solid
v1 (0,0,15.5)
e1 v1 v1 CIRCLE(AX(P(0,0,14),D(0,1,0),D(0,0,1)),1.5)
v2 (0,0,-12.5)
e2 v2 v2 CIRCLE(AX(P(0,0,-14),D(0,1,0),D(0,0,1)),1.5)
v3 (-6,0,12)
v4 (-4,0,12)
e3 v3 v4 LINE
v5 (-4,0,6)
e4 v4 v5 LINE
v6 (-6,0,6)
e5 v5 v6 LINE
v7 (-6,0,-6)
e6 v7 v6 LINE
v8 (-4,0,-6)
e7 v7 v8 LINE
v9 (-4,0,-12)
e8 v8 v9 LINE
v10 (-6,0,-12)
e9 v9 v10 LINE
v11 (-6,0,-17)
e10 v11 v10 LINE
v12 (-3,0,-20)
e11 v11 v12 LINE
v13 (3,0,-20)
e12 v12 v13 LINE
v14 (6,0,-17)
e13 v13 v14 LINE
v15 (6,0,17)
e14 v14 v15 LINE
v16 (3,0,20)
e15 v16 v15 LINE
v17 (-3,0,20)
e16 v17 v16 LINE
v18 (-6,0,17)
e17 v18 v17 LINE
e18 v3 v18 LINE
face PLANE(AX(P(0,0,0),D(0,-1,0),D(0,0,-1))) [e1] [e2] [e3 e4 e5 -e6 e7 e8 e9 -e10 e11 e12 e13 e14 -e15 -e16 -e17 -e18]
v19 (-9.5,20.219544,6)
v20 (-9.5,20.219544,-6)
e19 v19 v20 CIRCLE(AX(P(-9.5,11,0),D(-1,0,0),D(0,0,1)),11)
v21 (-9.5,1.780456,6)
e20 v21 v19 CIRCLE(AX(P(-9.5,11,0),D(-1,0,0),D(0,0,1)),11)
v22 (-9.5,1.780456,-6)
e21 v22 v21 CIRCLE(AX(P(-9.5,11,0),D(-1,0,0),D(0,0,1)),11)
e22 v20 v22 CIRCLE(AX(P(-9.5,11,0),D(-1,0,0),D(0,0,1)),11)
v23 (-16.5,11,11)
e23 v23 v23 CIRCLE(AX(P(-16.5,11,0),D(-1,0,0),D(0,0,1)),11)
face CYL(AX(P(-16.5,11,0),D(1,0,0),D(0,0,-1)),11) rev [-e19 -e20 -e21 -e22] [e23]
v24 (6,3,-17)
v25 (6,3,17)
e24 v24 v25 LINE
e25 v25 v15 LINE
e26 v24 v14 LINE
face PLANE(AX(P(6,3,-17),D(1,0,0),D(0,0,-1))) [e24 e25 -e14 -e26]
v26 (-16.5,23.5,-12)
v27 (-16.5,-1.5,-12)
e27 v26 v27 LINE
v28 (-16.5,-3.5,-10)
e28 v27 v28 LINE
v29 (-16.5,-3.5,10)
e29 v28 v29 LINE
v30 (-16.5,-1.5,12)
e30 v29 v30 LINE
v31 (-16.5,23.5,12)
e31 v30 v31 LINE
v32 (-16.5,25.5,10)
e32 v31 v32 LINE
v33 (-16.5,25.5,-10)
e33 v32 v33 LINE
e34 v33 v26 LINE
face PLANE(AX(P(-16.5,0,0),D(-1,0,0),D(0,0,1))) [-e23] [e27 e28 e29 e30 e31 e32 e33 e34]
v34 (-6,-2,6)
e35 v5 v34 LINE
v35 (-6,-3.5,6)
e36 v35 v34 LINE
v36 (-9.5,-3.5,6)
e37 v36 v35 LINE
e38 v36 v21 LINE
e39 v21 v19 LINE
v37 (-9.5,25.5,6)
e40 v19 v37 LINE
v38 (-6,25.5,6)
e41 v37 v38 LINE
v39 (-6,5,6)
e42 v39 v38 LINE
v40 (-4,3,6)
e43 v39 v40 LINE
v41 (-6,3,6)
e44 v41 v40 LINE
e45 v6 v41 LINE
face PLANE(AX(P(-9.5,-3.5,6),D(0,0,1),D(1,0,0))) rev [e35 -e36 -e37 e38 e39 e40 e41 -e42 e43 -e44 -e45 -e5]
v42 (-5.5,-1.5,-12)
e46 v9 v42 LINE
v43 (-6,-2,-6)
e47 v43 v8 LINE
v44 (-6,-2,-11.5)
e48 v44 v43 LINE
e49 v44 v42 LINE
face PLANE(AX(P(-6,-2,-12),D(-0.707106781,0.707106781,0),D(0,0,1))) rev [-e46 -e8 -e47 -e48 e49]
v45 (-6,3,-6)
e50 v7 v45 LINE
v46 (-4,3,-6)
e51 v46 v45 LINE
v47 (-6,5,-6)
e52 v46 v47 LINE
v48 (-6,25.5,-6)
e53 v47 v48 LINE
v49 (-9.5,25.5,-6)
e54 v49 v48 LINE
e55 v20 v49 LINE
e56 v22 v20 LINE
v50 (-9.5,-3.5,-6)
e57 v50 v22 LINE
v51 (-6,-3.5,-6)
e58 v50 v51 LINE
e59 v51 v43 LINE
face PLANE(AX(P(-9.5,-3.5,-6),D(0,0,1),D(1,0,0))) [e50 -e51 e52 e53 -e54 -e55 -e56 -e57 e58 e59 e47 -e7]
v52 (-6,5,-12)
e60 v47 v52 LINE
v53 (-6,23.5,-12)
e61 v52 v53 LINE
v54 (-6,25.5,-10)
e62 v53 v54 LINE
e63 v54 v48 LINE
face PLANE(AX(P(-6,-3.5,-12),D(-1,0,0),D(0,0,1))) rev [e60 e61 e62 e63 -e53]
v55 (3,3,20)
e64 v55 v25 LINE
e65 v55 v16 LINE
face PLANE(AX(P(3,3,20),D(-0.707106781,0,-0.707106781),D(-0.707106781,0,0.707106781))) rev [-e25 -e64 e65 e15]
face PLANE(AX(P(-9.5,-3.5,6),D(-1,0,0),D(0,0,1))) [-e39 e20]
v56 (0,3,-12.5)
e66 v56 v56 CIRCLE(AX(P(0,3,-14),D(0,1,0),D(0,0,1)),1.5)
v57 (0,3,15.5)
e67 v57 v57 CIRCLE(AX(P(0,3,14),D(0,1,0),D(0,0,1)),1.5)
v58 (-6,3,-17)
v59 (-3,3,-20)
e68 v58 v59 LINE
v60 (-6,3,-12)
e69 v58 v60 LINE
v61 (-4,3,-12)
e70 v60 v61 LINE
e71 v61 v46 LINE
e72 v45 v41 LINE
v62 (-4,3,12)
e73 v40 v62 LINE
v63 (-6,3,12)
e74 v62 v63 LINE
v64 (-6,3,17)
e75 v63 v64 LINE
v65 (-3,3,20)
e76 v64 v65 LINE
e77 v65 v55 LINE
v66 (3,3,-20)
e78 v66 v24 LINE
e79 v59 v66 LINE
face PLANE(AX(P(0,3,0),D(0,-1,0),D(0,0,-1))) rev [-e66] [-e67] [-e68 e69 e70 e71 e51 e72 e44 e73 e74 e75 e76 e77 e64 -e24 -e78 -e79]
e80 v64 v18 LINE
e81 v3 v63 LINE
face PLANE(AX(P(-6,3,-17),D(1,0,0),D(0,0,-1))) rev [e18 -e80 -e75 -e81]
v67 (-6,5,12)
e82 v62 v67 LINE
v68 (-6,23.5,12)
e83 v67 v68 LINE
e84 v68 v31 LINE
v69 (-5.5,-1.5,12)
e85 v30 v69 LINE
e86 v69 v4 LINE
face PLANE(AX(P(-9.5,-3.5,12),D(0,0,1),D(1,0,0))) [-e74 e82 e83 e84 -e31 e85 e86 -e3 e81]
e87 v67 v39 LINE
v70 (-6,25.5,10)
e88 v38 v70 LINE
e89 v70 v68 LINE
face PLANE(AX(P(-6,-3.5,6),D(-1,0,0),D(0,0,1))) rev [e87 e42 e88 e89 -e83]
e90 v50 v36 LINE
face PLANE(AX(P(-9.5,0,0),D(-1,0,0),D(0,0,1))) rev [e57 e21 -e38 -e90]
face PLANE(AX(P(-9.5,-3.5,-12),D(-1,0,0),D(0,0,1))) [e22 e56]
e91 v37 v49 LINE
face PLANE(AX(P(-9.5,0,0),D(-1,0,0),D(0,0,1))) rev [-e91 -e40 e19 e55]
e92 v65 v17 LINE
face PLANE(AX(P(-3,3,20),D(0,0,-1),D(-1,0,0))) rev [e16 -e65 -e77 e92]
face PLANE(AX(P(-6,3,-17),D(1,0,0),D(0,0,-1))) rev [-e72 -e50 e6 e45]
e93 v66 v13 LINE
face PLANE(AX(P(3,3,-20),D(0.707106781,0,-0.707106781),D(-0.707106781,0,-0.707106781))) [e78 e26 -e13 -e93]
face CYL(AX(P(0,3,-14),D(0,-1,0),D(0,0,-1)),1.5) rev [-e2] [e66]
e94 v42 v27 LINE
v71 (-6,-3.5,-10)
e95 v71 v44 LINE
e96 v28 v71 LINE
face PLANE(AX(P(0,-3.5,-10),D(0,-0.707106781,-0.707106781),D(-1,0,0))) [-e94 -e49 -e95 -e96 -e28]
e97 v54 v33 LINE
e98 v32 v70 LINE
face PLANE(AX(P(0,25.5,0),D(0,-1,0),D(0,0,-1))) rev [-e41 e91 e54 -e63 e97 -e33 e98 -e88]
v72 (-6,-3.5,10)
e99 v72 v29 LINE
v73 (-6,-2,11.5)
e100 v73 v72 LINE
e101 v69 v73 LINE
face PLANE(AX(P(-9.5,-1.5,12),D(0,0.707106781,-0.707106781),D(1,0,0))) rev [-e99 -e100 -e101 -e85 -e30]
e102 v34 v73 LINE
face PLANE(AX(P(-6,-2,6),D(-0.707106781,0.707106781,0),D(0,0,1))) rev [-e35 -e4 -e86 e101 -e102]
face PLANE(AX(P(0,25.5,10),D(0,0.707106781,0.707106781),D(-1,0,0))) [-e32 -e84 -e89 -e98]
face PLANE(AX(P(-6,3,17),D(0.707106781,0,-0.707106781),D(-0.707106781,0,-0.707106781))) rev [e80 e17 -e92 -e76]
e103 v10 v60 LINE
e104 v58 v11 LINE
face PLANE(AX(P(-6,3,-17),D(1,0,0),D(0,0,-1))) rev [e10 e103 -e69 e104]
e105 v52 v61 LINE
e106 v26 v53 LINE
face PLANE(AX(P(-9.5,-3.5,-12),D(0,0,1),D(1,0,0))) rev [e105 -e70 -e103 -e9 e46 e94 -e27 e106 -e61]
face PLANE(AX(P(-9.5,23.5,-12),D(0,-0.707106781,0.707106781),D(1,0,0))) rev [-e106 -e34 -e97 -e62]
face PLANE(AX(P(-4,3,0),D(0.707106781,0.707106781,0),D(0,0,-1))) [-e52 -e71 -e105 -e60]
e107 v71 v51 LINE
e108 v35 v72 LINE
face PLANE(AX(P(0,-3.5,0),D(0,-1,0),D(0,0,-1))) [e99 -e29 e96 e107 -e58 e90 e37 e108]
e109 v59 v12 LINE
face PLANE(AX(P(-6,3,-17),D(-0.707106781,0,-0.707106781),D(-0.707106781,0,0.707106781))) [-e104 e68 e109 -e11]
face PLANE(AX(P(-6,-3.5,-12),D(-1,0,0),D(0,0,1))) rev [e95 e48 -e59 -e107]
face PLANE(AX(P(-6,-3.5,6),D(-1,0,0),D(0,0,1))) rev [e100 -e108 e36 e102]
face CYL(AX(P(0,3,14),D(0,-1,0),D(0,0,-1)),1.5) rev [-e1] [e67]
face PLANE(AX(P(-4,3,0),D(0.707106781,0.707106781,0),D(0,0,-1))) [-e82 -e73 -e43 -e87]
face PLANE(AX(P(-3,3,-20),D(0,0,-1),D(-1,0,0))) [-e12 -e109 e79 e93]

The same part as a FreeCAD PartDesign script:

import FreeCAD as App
import Part
import Sketcher
Q = App.Units.Quantity


def edges_at(feature, points):
    """Names of the edges that pass closest to the given points."""
    edges = feature.Shape.Edges
    near = lambda p: min(range(len(edges)), key=lambda i: edges[i].distToShape(Part.Vertex(*p))[0])
    return sorted({f"Edge{near(p) + 1}" for p in points})

doc = App.newDocument("Part")
body = doc.addObject("PartDesign::Body", "Body")

# Sketch on XZ plane
sketch1 = doc.addObject("Sketcher::SketchObject", "Sketch")
body.addObject(sketch1)
sketch1.AttachmentSupport = (doc.XZ_Plane, [""])
sketch1.MapMode = "FlatFace"
sketch1.addGeometry(Part.LineSegment(App.Vector(-3, -20, 0), App.Vector(-6, -17, 0)), False)
sketch1.addGeometry(Part.LineSegment(App.Vector(-6, -17, 0), App.Vector(-6, 17, 0)), False)
sketch1.addGeometry(Part.LineSegment(App.Vector(-6, 17, 0), App.Vector(-3, 20, 0)), False)
sketch1.addGeometry(Part.LineSegment(App.Vector(-3, 20, 0), App.Vector(3, 20, 0)), False)
sketch1.addGeometry(Part.LineSegment(App.Vector(3, 20, 0), App.Vector(6, 17, 0)), False)
sketch1.addGeometry(Part.LineSegment(App.Vector(6, 17, 0), App.Vector(6, -17, 0)), False)
sketch1.addGeometry(Part.LineSegment(App.Vector(6, -17, 0), App.Vector(3, -20, 0)), False)
sketch1.addGeometry(Part.LineSegment(App.Vector(3, -20, 0), App.Vector(-3, -20, 0)), False)
sketch1.addGeometry(Part.Circle(App.Vector(0, 14, 0), App.Vector(0, 0, 1), 1.5), False)
sketch1.addGeometry(Part.Circle(App.Vector(0, -14, 0), App.Vector(0, 0, 1), 1.5), False)
sketch1.addConstraint(Sketcher.Constraint("Coincident", 0, 2, 1, 1))
sketch1.addConstraint(Sketcher.Constraint("Coincident", 1, 2, 2, 1))
sketch1.addConstraint(Sketcher.Constraint("Coincident", 2, 2, 3, 1))
sketch1.addConstraint(Sketcher.Constraint("Coincident", 3, 2, 4, 1))
sketch1.addConstraint(Sketcher.Constraint("Coincident", 4, 2, 5, 1))
sketch1.addConstraint(Sketcher.Constraint("Coincident", 5, 2, 6, 1))
sketch1.addConstraint(Sketcher.Constraint("Coincident", 6, 2, 7, 1))
sketch1.addConstraint(Sketcher.Constraint("Coincident", 7, 2, 0, 1))
sketch1.addConstraint(Sketcher.Constraint("Vertical", 1))
sketch1.addConstraint(Sketcher.Constraint("Horizontal", 3))
sketch1.addConstraint(Sketcher.Constraint("Vertical", 5))
sketch1.addConstraint(Sketcher.Constraint("Horizontal", 7))
sketch1.addConstraint(Sketcher.Constraint("Equal", 8, 9))
sketch1.addConstraint(Sketcher.Constraint("Symmetric", 8, 3, 9, 3, -1, 1))
sketch1.addConstraint(Sketcher.Constraint("Symmetric", 0, 2, 4, 2, -1, 1))
sketch1.addConstraint(Sketcher.Constraint("Symmetric", 2, 2, 6, 2, -1, 1))
sketch1.addConstraint(Sketcher.Constraint("PointOnObject", 8, 3, -2))
sketch1.addConstraint(Sketcher.Constraint("Perpendicular", 0, 2))
sketch1.addConstraint(Sketcher.Constraint("Perpendicular", 2, 4))
sketch1.addConstraint(Sketcher.Constraint("Perpendicular", 4, 6))
sketch1.addConstraint(Sketcher.Constraint("Horizontal", 1, 2, 4, 2))
sketch1.addConstraint(Sketcher.Constraint("Vertical", 3, 2, 6, 2))
sketch1.addConstraint(Sketcher.Constraint("Diameter", 8, Q("3 mm")))
sketch1.addConstraint(Sketcher.Constraint("DistanceX", 3, 1, 3, 2, Q("6 mm")))
sketch1.addConstraint(Sketcher.Constraint("DistanceY", 1, 1, 1, 2, Q("34 mm")))
sketch1.addConstraint(Sketcher.Constraint("DistanceY", -1, 1, 8, 3, Q("14 mm")))
sketch1.addConstraint(Sketcher.Constraint("DistanceX", 0, 2, -1, 1, Q("6 mm")))
pad1 = doc.addObject("PartDesign::Pad", "Pad")
body.addObject(pad1)
pad1.Profile = sketch1
pad1.Length = 3
pad1.Reversed = True

# Sketch on XZ plane
sketch2 = doc.addObject("Sketcher::SketchObject", "Sketch001")
body.addObject(sketch2)
sketch2.AttachmentSupport = (doc.XZ_Plane, [""])
sketch2.MapMode = "FlatFace"
sketch2.AttachmentOffset = App.Placement(App.Vector(0, 0, -25.5), App.Rotation())
sketch2.addGeometry(Part.LineSegment(App.Vector(-9.5, -12, 0), App.Vector(-9.5, -6, 0)), False)
sketch2.addGeometry(Part.LineSegment(App.Vector(-9.5, -6, 0), App.Vector(-6, -6, 0)), False)
sketch2.addGeometry(Part.LineSegment(App.Vector(-6, -6, 0), App.Vector(-6, -12, 0)), False)
sketch2.addGeometry(Part.LineSegment(App.Vector(-6, -12, 0), App.Vector(-9.5, -12, 0)), False)
sketch2.addGeometry(Part.LineSegment(App.Vector(-9.5, 6, 0), App.Vector(-9.5, 12, 0)), False)
sketch2.addGeometry(Part.LineSegment(App.Vector(-9.5, 12, 0), App.Vector(-6, 12, 0)), False)
sketch2.addGeometry(Part.LineSegment(App.Vector(-6, 12, 0), App.Vector(-6, 6, 0)), False)
sketch2.addGeometry(Part.LineSegment(App.Vector(-6, 6, 0), App.Vector(-9.5, 6, 0)), False)
sketch2.addConstraint(Sketcher.Constraint("Coincident", 0, 2, 1, 1))
sketch2.addConstraint(Sketcher.Constraint("Coincident", 1, 2, 2, 1))
sketch2.addConstraint(Sketcher.Constraint("Coincident", 2, 2, 3, 1))
sketch2.addConstraint(Sketcher.Constraint("Coincident", 3, 2, 0, 1))
sketch2.addConstraint(Sketcher.Constraint("Coincident", 4, 2, 5, 1))
sketch2.addConstraint(Sketcher.Constraint("Coincident", 5, 2, 6, 1))
sketch2.addConstraint(Sketcher.Constraint("Coincident", 6, 2, 7, 1))
sketch2.addConstraint(Sketcher.Constraint("Coincident", 7, 2, 4, 1))
sketch2.addConstraint(Sketcher.Constraint("Vertical", 0))
sketch2.addConstraint(Sketcher.Constraint("Horizontal", 1))
sketch2.addConstraint(Sketcher.Constraint("Vertical", 2))
sketch2.addConstraint(Sketcher.Constraint("Horizontal", 3))
sketch2.addConstraint(Sketcher.Constraint("Vertical", 4))
sketch2.addConstraint(Sketcher.Constraint("Horizontal", 5))
sketch2.addConstraint(Sketcher.Constraint("Vertical", 6))
sketch2.addConstraint(Sketcher.Constraint("Horizontal", 7))
sketch2.addConstraint(Sketcher.Constraint("Symmetric", 3, 2, 4, 2, -1))
sketch2.addConstraint(Sketcher.Constraint("Symmetric", 1, 2, 6, 2, -1))
sketch2.addConstraint(Sketcher.Constraint("DistanceY", 0, 1, 0, 2, Q("6 mm")))
sketch2.addConstraint(Sketcher.Constraint("DistanceX", 1, 1, 1, 2, Q("3.5 mm")))
sketch2.addConstraint(Sketcher.Constraint("DistanceY", 0, 2, -1, 1, Q("6 mm")))
sketch2.addConstraint(Sketcher.Constraint("DistanceX", 1, 2, -1, 1, Q("6 mm")))
pad2 = doc.addObject("PartDesign::Pad", "Pad001")
body.addObject(pad2)
pad2.Profile = sketch2
pad2.Length = 29
doc.recompute()

chamfer = doc.addObject("PartDesign::Chamfer", "Chamfer")
body.addObject(chamfer)
chamfer.Base = (pad2, edges_at(pad2, [
    (-6, 0, -9),
    (-6, 0, 9),
    (-6, 3, -9),
    (-6, 3, 9),
]))
chamfer.Size = 2

# Sketch on YZ plane
sketch3 = doc.addObject("Sketcher::SketchObject", "Sketch002")
body.addObject(sketch3)
sketch3.AttachmentSupport = (doc.YZ_Plane, [""])
sketch3.MapMode = "FlatFace"
sketch3.AttachmentOffset = App.Placement(App.Vector(0, 0, -9.5), App.Rotation())
sketch3.addGeometry(Part.LineSegment(App.Vector(26, -12, 0), App.Vector(-4, -12, 0)), False)
sketch3.addGeometry(Part.LineSegment(App.Vector(-4, -12, 0), App.Vector(-4, 12, 0)), False)
sketch3.addGeometry(Part.LineSegment(App.Vector(-4, 12, 0), App.Vector(26, 12, 0)), False)
sketch3.addGeometry(Part.LineSegment(App.Vector(26, 12, 0), App.Vector(26, -12, 0)), False)
sketch3.addGeometry(Part.Circle(App.Vector(11, 0, 0), App.Vector(0, 0, 1), 11), False)
sketch3.addConstraint(Sketcher.Constraint("Coincident", 0, 2, 1, 1))
sketch3.addConstraint(Sketcher.Constraint("Coincident", 1, 2, 2, 1))
sketch3.addConstraint(Sketcher.Constraint("Coincident", 2, 2, 3, 1))
sketch3.addConstraint(Sketcher.Constraint("Coincident", 3, 2, 0, 1))
sketch3.addConstraint(Sketcher.Constraint("Horizontal", 0))
sketch3.addConstraint(Sketcher.Constraint("Vertical", 1))
sketch3.addConstraint(Sketcher.Constraint("Horizontal", 2))
sketch3.addConstraint(Sketcher.Constraint("Vertical", 3))
sketch3.addConstraint(Sketcher.Constraint("PointOnObject", 4, 3, -1))
sketch3.addConstraint(Sketcher.Constraint("Diameter", 4, Q("22 mm")))
sketch3.addConstraint(Sketcher.Constraint("DistanceX", 0, 2, 0, 1, Q("29 mm")))
sketch3.addConstraint(Sketcher.Constraint("DistanceY", 1, 1, 1, 2, Q("24 mm")))
sketch3.addConstraint(Sketcher.Constraint("DistanceX", -1, 1, 4, 3, Q("11 mm")))
sketch3.addConstraint(Sketcher.Constraint("DistanceY", 0, 2, -1, 1, Q("12 mm")))
sketch3.addConstraint(Sketcher.Constraint("DistanceX", 0, 2, -1, 1, Q("3.5 mm")))
pad3 = doc.addObject("PartDesign::Pad", "Pad002")
body.addObject(pad3)
pad3.Profile = sketch3
pad3.Length = 7
pad3.Reversed = True
doc.recompute()

chamfer2 = doc.addObject("PartDesign::Chamfer", "Chamfer001")
body.addObject(chamfer2)
chamfer2.Base = (pad3, edges_at(pad3, [
    (-11.25, 25.5, -12),
    (-11.25, -3.5, -12),
    (-11.25, -3.5, 12),
    (-11.25, 25.5, 12),
]))
chamfer2.Size = 2

doc.recompute()
